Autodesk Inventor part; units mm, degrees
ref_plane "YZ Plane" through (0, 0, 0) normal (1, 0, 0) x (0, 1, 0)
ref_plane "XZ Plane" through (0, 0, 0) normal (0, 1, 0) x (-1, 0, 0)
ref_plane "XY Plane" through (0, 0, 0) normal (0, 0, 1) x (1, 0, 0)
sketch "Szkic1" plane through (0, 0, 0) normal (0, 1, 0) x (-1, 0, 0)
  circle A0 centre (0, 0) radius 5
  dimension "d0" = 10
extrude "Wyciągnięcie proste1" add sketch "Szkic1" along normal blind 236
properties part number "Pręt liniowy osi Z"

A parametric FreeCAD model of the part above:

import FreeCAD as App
import Part
import Sketcher
from FreeCAD import Vector
Q = App.Units.Quantity

doc = App.newDocument("Part")
params = doc.addObject("Spreadsheet::Sheet", "Params")
for row, (alias, value) in enumerate([
    ("sketch1_diameter", "10 mm"),
    ("pad1_length", "236 mm"),
], start=1):
    params.set(f"A{row}", alias)
    params.set(f"B{row}", "=" + value)
    params.setAlias(f"B{row}", alias)

body = doc.addObject("PartDesign::Body", "Body")

# Sketch on XZ plane
sketch1 = body.newObject("Sketcher::SketchObject", "Sketch")
sketch1.AttachmentSupport = (doc.getObject("XZ_Plane"), [""])
sketch1.MapMode = "FlatFace"
sketch1.addGeometry(Part.Circle(Vector(0, 0, 0), Vector(0, 0, 1), 5), False)
sketch1.addConstraint([
    Sketcher.Constraint("Coincident", 0, 3, -1, 1),
    Sketcher.Constraint("Diameter", 0, Q("10 mm")),
])
sketch1.setExpression("Constraints[1]", "Params.sketch1_diameter")
pad1 = body.newObject("PartDesign::Pad", "Pad")
pad1.Profile = sketch1
pad1.setExpression("Length", "Params.pad1_length")
pad1.Reversed = True

doc.recompute()
